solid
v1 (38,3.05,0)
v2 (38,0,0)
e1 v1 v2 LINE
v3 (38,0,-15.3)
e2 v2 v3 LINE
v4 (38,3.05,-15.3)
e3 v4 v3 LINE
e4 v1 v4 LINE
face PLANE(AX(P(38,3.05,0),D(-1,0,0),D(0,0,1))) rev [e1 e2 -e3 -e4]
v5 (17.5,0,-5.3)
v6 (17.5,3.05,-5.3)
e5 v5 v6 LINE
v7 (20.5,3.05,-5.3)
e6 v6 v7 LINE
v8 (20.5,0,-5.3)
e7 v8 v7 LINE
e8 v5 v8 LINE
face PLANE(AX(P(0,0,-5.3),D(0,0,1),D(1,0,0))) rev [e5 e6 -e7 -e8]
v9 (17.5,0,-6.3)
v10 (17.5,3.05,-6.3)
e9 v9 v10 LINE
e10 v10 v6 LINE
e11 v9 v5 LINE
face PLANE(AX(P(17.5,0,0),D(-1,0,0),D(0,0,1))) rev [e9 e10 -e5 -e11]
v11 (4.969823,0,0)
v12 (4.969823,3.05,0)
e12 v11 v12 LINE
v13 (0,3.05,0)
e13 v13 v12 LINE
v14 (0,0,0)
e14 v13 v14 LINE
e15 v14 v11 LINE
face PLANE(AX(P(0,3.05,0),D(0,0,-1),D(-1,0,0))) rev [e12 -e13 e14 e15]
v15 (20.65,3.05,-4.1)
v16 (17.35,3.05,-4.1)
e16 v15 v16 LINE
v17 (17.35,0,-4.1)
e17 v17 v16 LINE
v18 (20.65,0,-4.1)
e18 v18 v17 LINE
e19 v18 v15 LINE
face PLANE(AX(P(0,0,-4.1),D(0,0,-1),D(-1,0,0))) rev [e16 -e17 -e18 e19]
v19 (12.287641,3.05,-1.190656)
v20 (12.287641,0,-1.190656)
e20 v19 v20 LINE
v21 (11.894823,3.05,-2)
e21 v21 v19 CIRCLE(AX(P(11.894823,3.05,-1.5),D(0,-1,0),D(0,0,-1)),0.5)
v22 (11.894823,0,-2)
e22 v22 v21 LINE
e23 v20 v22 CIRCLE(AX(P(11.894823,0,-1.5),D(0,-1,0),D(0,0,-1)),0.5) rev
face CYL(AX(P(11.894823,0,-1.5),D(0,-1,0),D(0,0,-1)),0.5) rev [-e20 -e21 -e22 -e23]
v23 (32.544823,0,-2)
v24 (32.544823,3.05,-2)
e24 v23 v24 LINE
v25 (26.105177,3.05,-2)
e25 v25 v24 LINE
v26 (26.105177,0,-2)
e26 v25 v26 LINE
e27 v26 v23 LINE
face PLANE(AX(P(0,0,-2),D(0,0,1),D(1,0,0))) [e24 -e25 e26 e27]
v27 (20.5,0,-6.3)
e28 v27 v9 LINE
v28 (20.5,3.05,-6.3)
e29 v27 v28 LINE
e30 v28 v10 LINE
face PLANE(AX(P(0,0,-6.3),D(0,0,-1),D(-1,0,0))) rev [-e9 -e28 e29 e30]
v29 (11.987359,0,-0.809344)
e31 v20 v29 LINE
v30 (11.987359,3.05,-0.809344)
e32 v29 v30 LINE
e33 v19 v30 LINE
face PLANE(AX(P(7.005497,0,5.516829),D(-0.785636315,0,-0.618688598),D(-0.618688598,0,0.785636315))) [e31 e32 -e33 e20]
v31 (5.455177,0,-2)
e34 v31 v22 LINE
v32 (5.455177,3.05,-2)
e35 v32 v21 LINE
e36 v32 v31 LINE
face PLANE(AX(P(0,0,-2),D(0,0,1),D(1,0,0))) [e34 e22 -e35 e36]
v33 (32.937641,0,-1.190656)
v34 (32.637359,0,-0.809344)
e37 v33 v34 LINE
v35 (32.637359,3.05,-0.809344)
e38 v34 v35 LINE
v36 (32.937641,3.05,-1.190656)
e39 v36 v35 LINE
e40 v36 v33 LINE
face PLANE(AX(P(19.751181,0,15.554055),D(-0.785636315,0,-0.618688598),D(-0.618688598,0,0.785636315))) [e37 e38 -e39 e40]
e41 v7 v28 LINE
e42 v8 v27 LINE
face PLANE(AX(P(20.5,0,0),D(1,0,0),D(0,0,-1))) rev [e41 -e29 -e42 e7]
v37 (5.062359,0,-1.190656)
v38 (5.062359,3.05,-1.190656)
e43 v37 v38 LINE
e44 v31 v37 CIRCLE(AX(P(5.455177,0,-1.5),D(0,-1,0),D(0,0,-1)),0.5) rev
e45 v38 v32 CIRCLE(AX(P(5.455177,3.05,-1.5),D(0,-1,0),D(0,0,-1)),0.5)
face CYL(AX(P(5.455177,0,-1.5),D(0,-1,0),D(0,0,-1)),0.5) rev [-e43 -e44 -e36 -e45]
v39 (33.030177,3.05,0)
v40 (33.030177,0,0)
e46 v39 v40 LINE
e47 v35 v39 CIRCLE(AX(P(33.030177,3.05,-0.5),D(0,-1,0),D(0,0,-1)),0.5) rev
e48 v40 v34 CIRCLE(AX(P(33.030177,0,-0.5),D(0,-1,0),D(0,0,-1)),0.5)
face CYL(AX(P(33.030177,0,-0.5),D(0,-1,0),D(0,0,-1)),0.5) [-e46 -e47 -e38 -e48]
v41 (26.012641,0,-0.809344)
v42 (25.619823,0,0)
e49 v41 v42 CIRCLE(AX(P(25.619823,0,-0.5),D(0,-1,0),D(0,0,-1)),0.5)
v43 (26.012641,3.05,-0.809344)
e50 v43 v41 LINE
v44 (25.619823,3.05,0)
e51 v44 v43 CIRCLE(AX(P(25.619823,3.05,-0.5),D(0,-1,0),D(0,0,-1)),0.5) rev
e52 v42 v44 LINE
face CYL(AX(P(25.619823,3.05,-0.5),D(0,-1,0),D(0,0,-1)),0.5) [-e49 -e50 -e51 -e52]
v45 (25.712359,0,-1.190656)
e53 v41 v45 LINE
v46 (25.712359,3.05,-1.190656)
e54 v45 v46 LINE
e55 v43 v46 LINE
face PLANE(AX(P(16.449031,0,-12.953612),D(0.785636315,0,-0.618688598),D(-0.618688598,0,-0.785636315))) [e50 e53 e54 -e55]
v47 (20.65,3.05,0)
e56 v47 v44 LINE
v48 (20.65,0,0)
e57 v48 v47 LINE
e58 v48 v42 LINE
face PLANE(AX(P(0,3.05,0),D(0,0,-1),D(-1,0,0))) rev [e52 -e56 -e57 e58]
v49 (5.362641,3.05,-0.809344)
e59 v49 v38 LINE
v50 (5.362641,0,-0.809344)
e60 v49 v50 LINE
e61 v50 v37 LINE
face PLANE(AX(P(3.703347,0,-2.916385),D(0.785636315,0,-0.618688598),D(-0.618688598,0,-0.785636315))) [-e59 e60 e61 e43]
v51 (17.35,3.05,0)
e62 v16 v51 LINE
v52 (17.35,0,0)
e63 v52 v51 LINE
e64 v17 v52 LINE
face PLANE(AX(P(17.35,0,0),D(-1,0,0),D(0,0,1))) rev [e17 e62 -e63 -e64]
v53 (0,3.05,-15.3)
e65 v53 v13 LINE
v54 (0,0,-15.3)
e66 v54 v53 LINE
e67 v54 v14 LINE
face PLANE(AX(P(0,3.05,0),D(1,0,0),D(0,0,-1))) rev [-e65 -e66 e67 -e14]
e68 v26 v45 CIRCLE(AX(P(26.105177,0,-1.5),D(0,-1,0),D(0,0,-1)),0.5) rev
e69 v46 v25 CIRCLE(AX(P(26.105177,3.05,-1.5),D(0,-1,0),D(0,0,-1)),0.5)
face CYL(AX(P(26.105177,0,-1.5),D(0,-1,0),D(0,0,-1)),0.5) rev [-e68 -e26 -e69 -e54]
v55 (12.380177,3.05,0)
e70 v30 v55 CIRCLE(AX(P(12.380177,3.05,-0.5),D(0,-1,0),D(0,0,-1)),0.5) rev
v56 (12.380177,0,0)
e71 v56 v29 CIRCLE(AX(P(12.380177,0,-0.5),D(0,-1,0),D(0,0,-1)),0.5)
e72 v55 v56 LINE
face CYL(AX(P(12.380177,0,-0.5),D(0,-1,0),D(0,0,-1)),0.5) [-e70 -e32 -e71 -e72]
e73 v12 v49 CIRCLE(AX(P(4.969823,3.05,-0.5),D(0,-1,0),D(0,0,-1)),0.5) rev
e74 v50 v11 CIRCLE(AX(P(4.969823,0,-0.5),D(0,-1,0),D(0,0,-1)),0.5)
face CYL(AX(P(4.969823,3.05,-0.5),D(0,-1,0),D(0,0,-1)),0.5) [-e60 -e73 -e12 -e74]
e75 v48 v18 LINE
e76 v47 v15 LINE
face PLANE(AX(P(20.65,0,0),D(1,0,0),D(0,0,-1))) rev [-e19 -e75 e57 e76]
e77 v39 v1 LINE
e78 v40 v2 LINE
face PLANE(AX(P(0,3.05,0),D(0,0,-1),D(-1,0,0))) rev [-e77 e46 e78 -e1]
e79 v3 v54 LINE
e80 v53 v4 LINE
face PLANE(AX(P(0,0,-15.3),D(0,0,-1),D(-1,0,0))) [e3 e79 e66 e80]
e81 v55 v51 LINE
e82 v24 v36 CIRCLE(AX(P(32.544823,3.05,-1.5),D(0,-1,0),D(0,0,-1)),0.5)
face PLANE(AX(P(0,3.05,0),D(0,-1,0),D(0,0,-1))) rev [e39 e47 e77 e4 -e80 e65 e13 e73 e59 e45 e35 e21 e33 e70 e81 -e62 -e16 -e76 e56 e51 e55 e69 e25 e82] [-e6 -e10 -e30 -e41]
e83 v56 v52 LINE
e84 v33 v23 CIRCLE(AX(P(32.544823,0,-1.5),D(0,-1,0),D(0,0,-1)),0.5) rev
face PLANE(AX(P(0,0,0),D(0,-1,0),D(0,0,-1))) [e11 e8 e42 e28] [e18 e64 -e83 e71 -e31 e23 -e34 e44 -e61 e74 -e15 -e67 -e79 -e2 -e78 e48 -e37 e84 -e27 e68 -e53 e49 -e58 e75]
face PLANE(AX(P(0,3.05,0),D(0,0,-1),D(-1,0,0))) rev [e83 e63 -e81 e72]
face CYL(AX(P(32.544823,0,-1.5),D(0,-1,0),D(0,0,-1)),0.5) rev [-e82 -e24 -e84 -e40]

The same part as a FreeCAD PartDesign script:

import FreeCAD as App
import Part
import Sketcher

V = App.Vector


def edges_at(feature, points):
    """Names of the edges that pass closest to the given points."""
    edges = feature.Shape.Edges
    near = lambda p: min(range(len(edges)), key=lambda i: edges[i].distToShape(Part.Vertex(*p))[0])
    return sorted({f"Edge{near(p) + 1}" for p in points})

doc = App.newDocument("Part")
params = doc.addObject("Spreadsheet::Sheet", "Params")
for row, (alias, value) in enumerate([
    ("sketch1_width", "38 mm"),
    ("sketch1_height", "8.3 mm"),
    ("pad1_length", "3.05 mm"),
    ("sketch2_width", "3 mm"),
    ("sketch2_height", "1 mm"),
    ("sketch2_width2", "3.3 mm"),
    ("sketch2_height2", "4.1 mm"),
    ("sketch3_width", "8.5 mm"),
    ("sketch3_width2", "5.35 mm"),
    ("fillet_radius", "0.5 mm"),
    ("sketch4_width", "38 mm"),
    ("sketch4_height", "3.05 mm"),
    ("pad2_length", "7 mm"),
], start=1):
    params.set(f"A{row}", alias)
    params.set(f"B{row}", "=" + value)
    params.setAlias(f"B{row}", alias)

body = doc.addObject("PartDesign::Body", "Body")

# Sketch on XZ plane
sketch1 = body.newObject("Sketcher::SketchObject", "Sketch")
sketch1.AttachmentSupport = (doc.getObject("XZ_Plane"), [""])
sketch1.MapMode = "FlatFace"
sketch1.addGeometry([
    Part.LineSegment(V(0, -8, 0), V(0, 0, 0)),
    Part.LineSegment(V(0, 0, 0), V(38, 0, 0)),
    Part.LineSegment(V(38, 0, 0), V(38, -8, 0)),
    Part.LineSegment(V(38, -8, 0), V(0, -8, 0)),
], False)
sketch1.addConstraint([
    Sketcher.Constraint("Coincident", 0, 2, 1, 1),
    Sketcher.Constraint("Coincident", 1, 2, 2, 1),
    Sketcher.Constraint("Coincident", 2, 2, 3, 1),
    Sketcher.Constraint("Coincident", 3, 2, 0, 1),
    Sketcher.Constraint("Vertical", 0),
    Sketcher.Constraint("Horizontal", 1),
    Sketcher.Constraint("Vertical", 2),
    Sketcher.Constraint("Horizontal", 3),
    Sketcher.Constraint("Coincident", 0, 2, -1, 1),
    Sketcher.Constraint("DistanceX", 1, 1, 1, 2, 38.0),
    Sketcher.Constraint("DistanceY", 0, 1, 0, 2, 8.3),
])
sketch1.setExpression("Constraints[9]", "Params.sketch1_width")
sketch1.setExpression("Constraints[10]", "Params.sketch1_height")
pad1 = body.newObject("PartDesign::Pad", "Pad")
pad1.Profile = sketch1
pad1.setExpression("Length", "Params.pad1_length")
pad1.Reversed = True

# Sketch on XZ plane
sketch2 = body.newObject("Sketcher::SketchObject", "Sketch001")
sketch2.AttachmentSupport = (doc.getObject("XZ_Plane"), [""])
sketch2.MapMode = "FlatFace"
sketch2.AttachmentOffset = App.Placement(V(0, 0, -3.05), App.Rotation())
sketch2.addGeometry([
    Part.LineSegment(V(20.6, -4.1, 0), V(17.4, -4.1, 0)),  # 0
    Part.LineSegment(V(17.4, -4.1, 0), V(17.4, 0, 0)),  # 1
    Part.LineSegment(V(17.4, 0, 0), V(20.6, 0, 0)),  # 2
    Part.LineSegment(V(20.6, 0, 0), V(20.6, -4.1, 0)),  # 3
    Part.LineSegment(V(17.5, -6.3, 0), V(17.5, -5.3, 0)),  # 4
    Part.LineSegment(V(17.5, -5.3, 0), V(20.5, -5.3, 0)),  # 5
    Part.LineSegment(V(20.5, -5.3, 0), V(20.5, -6.3, 0)),  # 6
    Part.LineSegment(V(20.5, -6.3, 0), V(17.5, -6.3, 0)),  # 7
], False)
sketch2.addConstraint([
    Sketcher.Constraint("Coincident", 0, 2, 1, 1),
    Sketcher.Constraint("Coincident", 1, 2, 2, 1),
    Sketcher.Constraint("Coincident", 2, 2, 3, 1),
    Sketcher.Constraint("Coincident", 3, 2, 0, 1),
    Sketcher.Constraint("Coincident", 4, 2, 5, 1),
    Sketcher.Constraint("Coincident", 5, 2, 6, 1),
    Sketcher.Constraint("Coincident", 6, 2, 7, 1),
    Sketcher.Constraint("Coincident", 7, 2, 4, 1),
    Sketcher.Constraint("Horizontal", 0),
    Sketcher.Constraint("Vertical", 1),
    Sketcher.Constraint("Horizontal", 2),
    Sketcher.Constraint("Vertical", 3),
    Sketcher.Constraint("Vertical", 4),
    Sketcher.Constraint("Horizontal", 5),
    Sketcher.Constraint("Vertical", 6),
    Sketcher.Constraint("Horizontal", 7),
    Sketcher.Constraint("PointOnObject", 1, 2, -1),
    Sketcher.Constraint("DistanceX", 5, 1, 5, 2, 3.0),
    Sketcher.Constraint("DistanceY", 4, 1, 4, 2, 1.0),
    Sketcher.Constraint("DistanceX", 0, 2, 0, 1, 3.3),
    Sketcher.Constraint("DistanceY", 1, 1, 1, 2, 4.1),
    Sketcher.Constraint("DistanceX", -1, 1, 4, 2, 17.5),
    Sketcher.Constraint("DistanceY", 4, 2, -1, 1, 5.3),
    Sketcher.Constraint("DistanceX", -1, 1, 0, 2, 17.35),
])
sketch2.setExpression("Constraints[17]", "Params.sketch2_width")
sketch2.setExpression("Constraints[18]", "Params.sketch2_height")
sketch2.setExpression("Constraints[19]", "Params.sketch2_width2")
sketch2.setExpression("Constraints[20]", "Params.sketch2_height2")
pocket1 = body.newObject("PartDesign::Pocket", "Pocket")
pocket1.Profile = sketch2
pocket1.Type = "ThroughAll"
pocket1.Reversed = True

# Sketch on XZ plane
sketch3 = body.newObject("Sketcher::SketchObject", "Sketch002")
sketch3.AttachmentSupport = (doc.getObject("XZ_Plane"), [""])
sketch3.MapMode = "FlatFace"
sketch3.AttachmentOffset = App.Placement(V(0, 0, -3.05), App.Rotation())
sketch3.addGeometry([
    Part.LineSegment(V(4.4, -2, 0), V(6, 0, 0)),  # 0
    Part.LineSegment(V(6, 0, 0), V(11.3, 0, 0)),  # 1
    Part.LineSegment(V(11.3, 0, 0), V(12.9, -2, 0)),  # 2
    Part.LineSegment(V(12.9, -2, 0), V(4.4, -2, 0)),  # 3
    Part.LineSegment(V(33.6, -2, 0), V(25.1, -2, 0)),  # 4
    Part.LineSegment(V(25.1, -2, 0), V(26.6, 0, 0)),  # 5
    Part.LineSegment(V(26.6, 0, 0), V(32, 0, 0)),  # 6
    Part.LineSegment(V(32, 0, 0), V(33.6, -2, 0)),  # 7
], False)
sketch3.addConstraint([
    Sketcher.Constraint("Coincident", 0, 2, 1, 1),
    Sketcher.Constraint("Coincident", 1, 2, 2, 1),
    Sketcher.Constraint("Coincident", 2, 2, 3, 1),
    Sketcher.Constraint("Coincident", 3, 2, 0, 1),
    Sketcher.Constraint("Coincident", 4, 2, 5, 1),
    Sketcher.Constraint("Coincident", 5, 2, 6, 1),
    Sketcher.Constraint("Coincident", 6, 2, 7, 1),
    Sketcher.Constraint("Coincident", 7, 2, 4, 1),
    Sketcher.Constraint("Horizontal", 1),
    Sketcher.Constraint("Horizontal", 3),
    Sketcher.Constraint("Horizontal", 4),
    Sketcher.Constraint("Horizontal", 6),
    Sketcher.Constraint("PointOnObject", 0, 2, -1),
    Sketcher.Constraint("PointOnObject", 5, 2, -1),
    Sketcher.Constraint("Parallel", 0, 5),
    Sketcher.Constraint("Parallel", 2, 7),
    Sketcher.Constraint("Horizontal", 3, 2, 4, 2),
    Sketcher.Constraint("Equal", 3, 4),
    Sketcher.Constraint("Equal", 0, 2),
    Sketcher.Constraint("DistanceX", 3, 2, 3, 1, 8.5),
    Sketcher.Constraint("DistanceX", -1, 1, 0, 2, 6.0),
    Sketcher.Constraint("DistanceY", 2, 2, -1, 1, 2.0),
    Sketcher.Constraint("DistanceX", -1, 1, 6, 2, 32.0),
    Sketcher.Constraint("DistanceX", 1, 1, 1, 2, 5.35),
])
sketch3.setExpression("Constraints[19]", "Params.sketch3_width")
sketch3.setExpression("Constraints[23]", "Params.sketch3_width2")
pocket2 = body.newObject("PartDesign::Pocket", "Pocket001")
pocket2.Profile = sketch3
pocket2.Type = "ThroughAll"
pocket2.Reversed = True
doc.recompute()

fillet = body.newObject("PartDesign::Fillet", "Fillet")
fillet.Base = (pocket2, edges_at(pocket2, [
    (12.925, 1.525, -2),
    (11.35, 1.525, 0),
    (6, 1.525, 0),
    (4.425, 1.525, -2),
    (33.575, 1.525, -2),
    (32, 1.525, 0),
    (26.65, 1.525, 0),
    (25.075, 1.525, -2),
]))
fillet.setExpression("Radius", "Params.fillet_radius")

# Sketch on XY plane
sketch4 = body.newObject("Sketcher::SketchObject", "Sketch003")
sketch4.AttachmentSupport = (doc.getObject("XY_Plane"), [""])
sketch4.MapMode = "FlatFace"
sketch4.AttachmentOffset = App.Placement(V(0, 0, -8.3), App.Rotation())
sketch4.addGeometry([
    Part.LineSegment(V(38, 3, 0), V(38, 0, 0)),
    Part.LineSegment(V(38, 0, 0), V(0, 0, 0)),
    Part.LineSegment(V(0, 0, 0), V(0, 3, 0)),
    Part.LineSegment(V(0, 3, 0), V(38, 3, 0)),
], False)
sketch4.addConstraint([
    Sketcher.Constraint("Coincident", 0, 2, 1, 1),
    Sketcher.Constraint("Coincident", 1, 2, 2, 1),
    Sketcher.Constraint("Coincident", 2, 2, 3, 1),
    Sketcher.Constraint("Coincident", 3, 2, 0, 1),
    Sketcher.Constraint("Vertical", 0),
    Sketcher.Constraint("Horizontal", 1),
    Sketcher.Constraint("Vertical", 2),
    Sketcher.Constraint("Horizontal", 3),
    Sketcher.Constraint("Coincident", 1, 2, -1, 1),
    Sketcher.Constraint("DistanceX", 1, 2, 1, 1, 38.0),
    Sketcher.Constraint("DistanceY", 0, 2, 0, 1, 3.05),
])
sketch4.setExpression("Constraints[9]", "Params.sketch4_width")
sketch4.setExpression("Constraints[10]", "Params.sketch4_height")
pad2 = body.newObject("PartDesign::Pad", "Pad001")
pad2.Profile = sketch4
pad2.setExpression("Length", "Params.pad2_length")
pad2.Reversed = True

doc.recompute()
